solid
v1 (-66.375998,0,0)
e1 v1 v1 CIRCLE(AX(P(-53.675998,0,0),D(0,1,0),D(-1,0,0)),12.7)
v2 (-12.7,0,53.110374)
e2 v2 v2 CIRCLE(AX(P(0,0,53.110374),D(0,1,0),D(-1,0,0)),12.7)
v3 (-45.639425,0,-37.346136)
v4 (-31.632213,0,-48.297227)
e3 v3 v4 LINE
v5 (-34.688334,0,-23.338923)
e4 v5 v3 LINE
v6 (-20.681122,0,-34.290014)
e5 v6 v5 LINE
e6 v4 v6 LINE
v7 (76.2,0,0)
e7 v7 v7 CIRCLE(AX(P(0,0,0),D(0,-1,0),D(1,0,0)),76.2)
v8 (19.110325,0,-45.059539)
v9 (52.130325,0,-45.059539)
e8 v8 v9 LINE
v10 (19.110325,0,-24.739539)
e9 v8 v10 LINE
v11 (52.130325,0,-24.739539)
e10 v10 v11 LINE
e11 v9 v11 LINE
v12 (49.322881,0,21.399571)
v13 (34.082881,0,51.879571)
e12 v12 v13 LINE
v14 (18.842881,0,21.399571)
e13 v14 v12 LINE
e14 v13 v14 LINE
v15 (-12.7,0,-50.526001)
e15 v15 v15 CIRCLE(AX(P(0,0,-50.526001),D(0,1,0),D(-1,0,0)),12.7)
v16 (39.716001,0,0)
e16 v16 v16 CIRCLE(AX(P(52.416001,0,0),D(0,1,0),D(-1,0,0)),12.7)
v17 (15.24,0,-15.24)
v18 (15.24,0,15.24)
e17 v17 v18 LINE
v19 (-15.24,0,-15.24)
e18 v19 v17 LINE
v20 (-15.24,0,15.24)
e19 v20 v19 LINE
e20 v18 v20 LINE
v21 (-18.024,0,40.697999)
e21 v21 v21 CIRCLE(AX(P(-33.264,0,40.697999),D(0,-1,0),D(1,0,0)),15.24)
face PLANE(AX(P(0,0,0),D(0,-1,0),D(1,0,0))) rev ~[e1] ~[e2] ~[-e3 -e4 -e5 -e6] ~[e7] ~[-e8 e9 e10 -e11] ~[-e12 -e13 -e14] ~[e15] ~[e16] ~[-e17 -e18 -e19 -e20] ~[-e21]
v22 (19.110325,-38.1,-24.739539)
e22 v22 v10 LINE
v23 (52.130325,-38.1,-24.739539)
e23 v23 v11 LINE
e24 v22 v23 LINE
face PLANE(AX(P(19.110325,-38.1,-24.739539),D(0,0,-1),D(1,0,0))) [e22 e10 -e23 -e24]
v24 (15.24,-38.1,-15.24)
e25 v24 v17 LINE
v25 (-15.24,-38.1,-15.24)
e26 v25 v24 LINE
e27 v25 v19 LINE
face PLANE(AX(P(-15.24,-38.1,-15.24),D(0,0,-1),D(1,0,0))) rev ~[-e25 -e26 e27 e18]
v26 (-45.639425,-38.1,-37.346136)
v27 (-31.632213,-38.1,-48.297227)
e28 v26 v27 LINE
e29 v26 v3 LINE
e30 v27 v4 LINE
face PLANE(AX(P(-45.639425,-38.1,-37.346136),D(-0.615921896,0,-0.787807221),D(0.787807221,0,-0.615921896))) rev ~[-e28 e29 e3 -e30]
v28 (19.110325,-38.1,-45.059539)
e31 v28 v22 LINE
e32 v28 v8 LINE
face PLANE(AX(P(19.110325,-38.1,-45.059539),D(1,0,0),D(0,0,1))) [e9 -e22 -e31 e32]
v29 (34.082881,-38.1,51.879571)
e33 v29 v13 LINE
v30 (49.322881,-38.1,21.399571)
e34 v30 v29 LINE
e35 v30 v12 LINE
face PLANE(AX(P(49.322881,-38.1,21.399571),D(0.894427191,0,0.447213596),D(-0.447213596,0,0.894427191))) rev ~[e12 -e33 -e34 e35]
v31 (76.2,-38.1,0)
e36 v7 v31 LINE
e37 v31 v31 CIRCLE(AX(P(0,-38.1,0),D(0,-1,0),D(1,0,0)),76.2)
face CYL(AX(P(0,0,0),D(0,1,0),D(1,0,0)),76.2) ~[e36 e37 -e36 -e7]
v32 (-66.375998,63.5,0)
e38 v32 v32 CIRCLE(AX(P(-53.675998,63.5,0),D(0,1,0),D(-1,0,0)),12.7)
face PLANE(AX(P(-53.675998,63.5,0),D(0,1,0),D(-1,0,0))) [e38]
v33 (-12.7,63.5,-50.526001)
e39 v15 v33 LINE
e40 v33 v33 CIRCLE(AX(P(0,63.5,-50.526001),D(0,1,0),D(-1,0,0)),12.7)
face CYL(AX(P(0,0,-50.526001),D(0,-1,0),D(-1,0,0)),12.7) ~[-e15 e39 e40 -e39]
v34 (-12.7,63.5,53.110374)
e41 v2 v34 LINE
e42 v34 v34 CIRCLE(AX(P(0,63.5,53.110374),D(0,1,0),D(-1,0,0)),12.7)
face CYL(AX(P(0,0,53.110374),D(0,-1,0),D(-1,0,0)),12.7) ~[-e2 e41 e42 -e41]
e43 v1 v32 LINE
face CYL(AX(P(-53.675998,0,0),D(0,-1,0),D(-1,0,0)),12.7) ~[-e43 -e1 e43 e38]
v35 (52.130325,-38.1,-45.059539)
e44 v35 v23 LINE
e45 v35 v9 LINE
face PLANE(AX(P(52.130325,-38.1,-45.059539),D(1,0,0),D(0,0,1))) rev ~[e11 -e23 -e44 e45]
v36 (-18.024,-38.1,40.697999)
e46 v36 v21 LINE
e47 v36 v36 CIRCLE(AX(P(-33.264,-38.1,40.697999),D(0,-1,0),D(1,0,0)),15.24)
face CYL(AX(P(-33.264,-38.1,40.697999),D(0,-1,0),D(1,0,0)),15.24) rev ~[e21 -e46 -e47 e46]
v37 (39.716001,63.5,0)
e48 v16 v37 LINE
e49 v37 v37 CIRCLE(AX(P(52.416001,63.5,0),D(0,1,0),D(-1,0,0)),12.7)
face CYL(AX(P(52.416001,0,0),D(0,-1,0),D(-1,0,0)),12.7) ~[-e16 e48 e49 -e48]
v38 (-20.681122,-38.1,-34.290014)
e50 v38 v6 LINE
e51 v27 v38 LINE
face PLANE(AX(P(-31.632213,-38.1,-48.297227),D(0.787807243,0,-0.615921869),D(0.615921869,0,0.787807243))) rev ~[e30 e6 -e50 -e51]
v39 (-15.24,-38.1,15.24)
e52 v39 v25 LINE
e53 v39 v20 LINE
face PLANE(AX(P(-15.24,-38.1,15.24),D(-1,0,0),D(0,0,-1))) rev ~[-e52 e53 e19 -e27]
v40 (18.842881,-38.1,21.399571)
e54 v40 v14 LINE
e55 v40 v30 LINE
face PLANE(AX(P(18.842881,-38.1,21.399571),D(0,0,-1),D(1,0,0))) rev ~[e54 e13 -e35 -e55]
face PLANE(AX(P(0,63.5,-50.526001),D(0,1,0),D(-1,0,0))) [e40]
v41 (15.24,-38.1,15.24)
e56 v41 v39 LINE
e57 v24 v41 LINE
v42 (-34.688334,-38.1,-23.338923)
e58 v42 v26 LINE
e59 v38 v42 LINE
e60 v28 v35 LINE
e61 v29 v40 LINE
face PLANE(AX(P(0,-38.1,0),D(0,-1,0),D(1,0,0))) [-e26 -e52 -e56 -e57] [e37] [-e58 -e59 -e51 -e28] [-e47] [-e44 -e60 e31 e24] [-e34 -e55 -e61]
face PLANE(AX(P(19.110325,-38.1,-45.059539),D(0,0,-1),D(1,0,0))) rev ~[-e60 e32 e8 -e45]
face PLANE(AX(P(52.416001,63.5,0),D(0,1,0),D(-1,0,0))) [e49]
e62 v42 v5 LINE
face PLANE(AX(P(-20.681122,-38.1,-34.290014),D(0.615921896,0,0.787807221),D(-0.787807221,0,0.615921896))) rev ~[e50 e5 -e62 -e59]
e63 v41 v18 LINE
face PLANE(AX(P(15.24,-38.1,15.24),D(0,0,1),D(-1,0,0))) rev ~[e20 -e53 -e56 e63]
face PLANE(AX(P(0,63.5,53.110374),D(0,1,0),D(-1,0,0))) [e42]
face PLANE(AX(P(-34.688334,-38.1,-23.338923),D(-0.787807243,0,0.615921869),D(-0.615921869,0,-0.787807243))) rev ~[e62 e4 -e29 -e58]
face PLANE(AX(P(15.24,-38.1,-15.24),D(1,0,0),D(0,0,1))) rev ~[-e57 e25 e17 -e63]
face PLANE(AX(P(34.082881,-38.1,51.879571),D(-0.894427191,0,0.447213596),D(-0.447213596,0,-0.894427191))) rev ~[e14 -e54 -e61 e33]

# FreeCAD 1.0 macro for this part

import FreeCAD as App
import Part
import Sketcher

V = App.Vector
Q = App.Units.Quantity


def add_polygon(sketch, points):
    """Adds a closed chain of lines whose ends are joined by coincident constraints."""
    first, n = sketch.GeometryCount, len(points)
    for a, b in zip(points, points[1:] + points[:1]):
        sketch.addGeometry(Part.LineSegment(App.Vector(*a, 0), App.Vector(*b, 0)), False)
    for i in range(n):
        sketch.addConstraint(Sketcher.Constraint("Coincident", first + i, 2, first + (i + 1) % n, 1))

doc = App.newDocument("Part")
params = doc.addObject("Spreadsheet::Sheet", "Params")
for row, (alias, value) in enumerate([
    ("sketch1_diameter", "6 in"),
    ("pad1_length", "1.5 in"),
    ("sketch2_diameter", "1.2 in"),
    ("pocket1_length", "1.5 in"),
    ("sketch3_width", "1.2 in"),
    ("pocket2_length", "2 in"),
    ("sketch4_width", "1.2 in"),
    ("pocket3_length", "1.5 in"),
    ("sketch5_diameter", "1 in"),
    ("pad2_length", "2.5 in"),
    ("sketch6_width", "1.3 in"),
    ("sketch6_height", "0.8 in"),
    ("pocket4_length", "2 in"),
    ("sketch7_length", "0.7 in"),
    ("pocket5_length", "1.5 in"),
    ("sketch8_length", "0.7 in"),
    ("pocket6_length", "1.5 in"),
    ("sketch9_length", "0.7 in"),
    ("pocket7_length", "1.5 in"),
], start=1):
    params.set(f"A{row}", alias)
    params.set(f"B{row}", "=" + value)
    params.setAlias(f"B{row}", alias)

body = doc.addObject("PartDesign::Body", "Body")

# Sketch on XZ plane
sketch1 = body.newObject("Sketcher::SketchObject", "Sketch")
sketch1.AttachmentSupport = (doc.getObject("XZ_Plane"), [""])
sketch1.MapMode = "FlatFace"
sketch1.addGeometry(Part.Circle(V(0, 0, 0), V(0, 0, 1), 76), False)
sketch1.addConstraint([
    Sketcher.Constraint("Coincident", 0, 3, -1, 1),
    Sketcher.Constraint("Diameter", 0, Q("6 in")),
])
sketch1.setExpression("Constraints[1]", "Params.sketch1_diameter")
pad1 = body.newObject("PartDesign::Pad", "Pad")
pad1.Profile = sketch1
pad1.setExpression("Length", "Params.pad1_length")

# Sketch on XZ plane
sketch2 = body.newObject("Sketcher::SketchObject", "Sketch001")
sketch2.AttachmentSupport = (doc.getObject("XZ_Plane"), [""])
sketch2.MapMode = "FlatFace"
sketch2.AttachmentOffset = App.Placement(V(0, 0, 1.5 * 25.4), App.Rotation())
sketch2.addGeometry(Part.Circle(V(-33, 41, 0), V(0, 0, 1), 15), False)
sketch2.addConstraint([
    Sketcher.Constraint("Diameter", 0, Q("1.2 in")),
    Sketcher.Constraint("DistanceX", 0, 3, -1, 1, Q("33.264 mm")),
    Sketcher.Constraint("DistanceY", -1, 1, 0, 3, Q("40.697999 mm")),
])
sketch2.setExpression("Constraints[0]", "Params.sketch2_diameter")
pocket1 = body.newObject("PartDesign::Pocket", "Pocket")
pocket1.Profile = sketch2
pocket1.setExpression("Length", "Params.pocket1_length")

# Sketch on XZ plane
sketch3 = body.newObject("Sketcher::SketchObject", "Sketch002")
sketch3.AttachmentSupport = (doc.getObject("XZ_Plane"), [""])
sketch3.MapMode = "FlatFace"
sketch3.AttachmentOffset = App.Placement(V(0, 0, 1.5 * 25.4), App.Rotation())
add_polygon(sketch3, [(34, 52), (19, 21), (49, 21)])  # lines 0-2
sketch3.addConstraint([
    Sketcher.Constraint("Horizontal", 1),
    Sketcher.Constraint("Equal", 0, 2),
    Sketcher.Constraint("DistanceX", 1, 1, 1, 2, Q("1.2 in")),
    Sketcher.Constraint("DistanceY", 0, 2, 2, 2, Q("1.2 in")),
    Sketcher.Constraint("DistanceX", -1, 1, 0, 2, Q("18.842881 mm")),
    Sketcher.Constraint("DistanceY", -1, 1, 0, 2, Q("21.399571 mm")),
])
sketch3.setExpression("Constraints[5]", "Params.sketch3_width")
pocket2 = body.newObject("PartDesign::Pocket", "Pocket001")
pocket2.Profile = sketch3
pocket2.setExpression("Length", "Params.pocket2_length")

# Sketch on XZ plane
sketch4 = body.newObject("Sketcher::SketchObject", "Sketch003")
sketch4.AttachmentSupport = (doc.getObject("XZ_Plane"), [""])
sketch4.MapMode = "FlatFace"
sketch4.AttachmentOffset = App.Placement(V(0, 0, 1.5 * 25.4), App.Rotation())
add_polygon(sketch4, [(15, 15), (-15, 15), (-15, -15), (15, -15)])  # lines 0-3
sketch4.addConstraint([
    Sketcher.Constraint("Horizontal", 0),
    Sketcher.Constraint("Vertical", 1),
    Sketcher.Constraint("Horizontal", 2),
    Sketcher.Constraint("Vertical", 3),
    Sketcher.Constraint("Symmetric", 0, 2, 2, 2, -1, 1),
    Sketcher.Constraint("Equal", 2, 1),
    Sketcher.Constraint("DistanceX", 0, 2, 0, 1, Q("1.2 in")),
])
sketch4.setExpression("Constraints[10]", "Params.sketch4_width")
pocket3 = body.newObject("PartDesign::Pocket", "Pocket002")
pocket3.Profile = sketch4
pocket3.setExpression("Length", "Params.pocket3_length")

# Sketch on XZ plane
sketch5 = body.newObject("Sketcher::SketchObject", "Sketch004")
sketch5.AttachmentSupport = (doc.getObject("XZ_Plane"), [""])
sketch5.MapMode = "FlatFace"
sketch5.addGeometry([
    Part.Circle(V(0, 53, 0), V(0, 0, 1), 13),
    Part.Circle(V(0, -51, 0), V(0, 0, 1), 13),
    Part.Circle(V(-54, 0, 0), V(0, 0, 1), 13),
    Part.Circle(V(52, 0, 0), V(0, 0, 1), 13),
], False)
sketch5.addConstraint([
    Sketcher.Constraint("Equal", 0, 1),
    Sketcher.Constraint("Equal", 1, 2),
    Sketcher.Constraint("Equal", 2, 3),
    Sketcher.Constraint("PointOnObject", 0, 3, -2),
    Sketcher.Constraint("PointOnObject", 1, 3, -2),
    Sketcher.Constraint("PointOnObject", 2, 3, -1),
    Sketcher.Constraint("PointOnObject", 3, 3, -1),
    Sketcher.Constraint("Diameter", 0, Q("1 in")),
    Sketcher.Constraint("DistanceY", 1, 3, -1, 1, Q("50.526001 mm")),
    Sketcher.Constraint("DistanceX", -1, 1, 3, 3, Q("52.416001 mm")),
    Sketcher.Constraint("DistanceX", 2, 3, 3, 3, Q("106.091999 mm")),
    Sketcher.Constraint("DistanceY", -1, 1, 0, 3, Q("53.110374 mm")),
])
sketch5.setExpression("Constraints[7]", "Params.sketch5_diameter")
pad2 = body.newObject("PartDesign::Pad", "Pad001")
pad2.Profile = sketch5
pad2.setExpression("Length", "Params.pad2_length")
pad2.Reversed = True

# Sketch on XZ plane
sketch6 = body.newObject("Sketcher::SketchObject", "Sketch005")
sketch6.AttachmentSupport = (doc.getObject("XZ_Plane"), [""])
sketch6.MapMode = "FlatFace"
sketch6.AttachmentOffset = App.Placement(V(0, 0, 1.5 * 25.4), App.Rotation())
add_polygon(sketch6, [(19, -25), (19, -45), (52, -45), (52, -25)])  # lines 0-3
sketch6.addConstraint([
    Sketcher.Constraint("Vertical", 0),
    Sketcher.Constraint("Horizontal", 1),
    Sketcher.Constraint("Vertical", 2),
    Sketcher.Constraint("Horizontal", 3),
    Sketcher.Constraint("DistanceX", 1, 1, 1, 2, Q("1.3 in")),
    Sketcher.Constraint("DistanceY", 0, 2, 0, 1, Q("0.8 in")),
    Sketcher.Constraint("DistanceY", 0, 2, -1, 1, Q("45.059539 mm")),
    Sketcher.Constraint("DistanceX", -1, 1, 0, 2, Q("19.110325 mm")),
])
sketch6.setExpression("Constraints[8]", "Params.sketch6_width")
sketch6.setExpression("Constraints[9]", "Params.sketch6_height")
pocket4 = body.newObject("PartDesign::Pocket", "Pocket003")
pocket4.Profile = sketch6
pocket4.setExpression("Length", "Params.pocket4_length")

# Sketch on XZ plane
sketch7 = body.newObject("Sketcher::SketchObject", "Sketch006")
sketch7.AttachmentSupport = (doc.getObject("XZ_Plane"), [""])
sketch7.MapMode = "FlatFace"
sketch7.AttachmentOffset = App.Placement(V(0, 0, 1.5 * 25.4), App.Rotation())
add_polygon(sketch7, [(-21, -34), (-35, -23), (-46, -37), (-32, -48)])  # lines 0-3
sketch7.addConstraint([
    Sketcher.Constraint("Perpendicular", 0, 1),
    Sketcher.Constraint("Perpendicular", 1, 2),
    Sketcher.Constraint("Perpendicular", 2, 3),
    Sketcher.Constraint("Equal", 0, 1),
    Sketcher.Constraint("Distance", 0, Q("0.7 in")),
    Sketcher.Constraint("DistanceX", 3, 2, -1, 1, Q("20.681122 mm")),
    Sketcher.Constraint("DistanceX", 1, 2, 0, 2, Q("10.951091 mm")),
    Sketcher.Constraint("DistanceY", 0, 2, -1, 1, Q("23.338923 mm")),
])
sketch7.setExpression("Constraints[8]", "Params.sketch7_length")
pocket5 = body.newObject("PartDesign::Pocket", "Pocket004")
pocket5.Profile = sketch7
pocket5.setExpression("Length", "Params.pocket5_length")
pocket5.Reversed = True

# Sketch on XZ plane
sketch8 = body.newObject("Sketcher::SketchObject", "Sketch007")
sketch8.AttachmentSupport = (doc.getObject("XZ_Plane"), [""])
sketch8.MapMode = "FlatFace"
sketch8.AttachmentOffset = App.Placement(V(0, 0, 1.5 * 25.4), App.Rotation())
add_polygon(sketch8, [(-21, -34), (-35, -23), (-46, -37), (-32, -48)])  # lines 0-3
sketch8.addConstraint([
    Sketcher.Constraint("Perpendicular", 0, 1),
    Sketcher.Constraint("Perpendicular", 1, 2),
    Sketcher.Constraint("Perpendicular", 2, 3),
    Sketcher.Constraint("Equal", 0, 1),
    Sketcher.Constraint("Distance", 0, Q("0.7 in")),
    Sketcher.Constraint("DistanceX", 3, 2, -1, 1, Q("20.681122 mm")),
    Sketcher.Constraint("DistanceX", 1, 2, 0, 2, Q("10.951091 mm")),
    Sketcher.Constraint("DistanceY", 0, 2, -1, 1, Q("23.338923 mm")),
])
sketch8.setExpression("Constraints[8]", "Params.sketch8_length")
pocket6 = body.newObject("PartDesign::Pocket", "Pocket005")
pocket6.Profile = sketch8
pocket6.setExpression("Length", "Params.pocket6_length")

# Sketch on XZ plane
sketch9 = body.newObject("Sketcher::SketchObject", "Sketch008")
sketch9.AttachmentSupport = (doc.getObject("XZ_Plane"), [""])
sketch9.MapMode = "FlatFace"
sketch9.AttachmentOffset = App.Placement(V(0, 0, 1.5 * 25.4), App.Rotation())
add_polygon(sketch9, [(-21, -34), (-35, -23), (-46, -37), (-32, -48)])  # lines 0-3
sketch9.addConstraint([
    Sketcher.Constraint("Perpendicular", 0, 1),
    Sketcher.Constraint("Perpendicular", 1, 2),
    Sketcher.Constraint("Perpendicular", 2, 3),
    Sketcher.Constraint("Equal", 0, 1),
    Sketcher.Constraint("Distance", 0, Q("0.7 in")),
    Sketcher.Constraint("DistanceX", 3, 2, -1, 1, Q("20.681122 mm")),
    Sketcher.Constraint("DistanceX", 1, 2, 0, 2, Q("10.951091 mm")),
    Sketcher.Constraint("DistanceY", 0, 2, -1, 1, Q("23.338923 mm")),
])
sketch9.setExpression("Constraints[8]", "Params.sketch9_length")
pocket7 = body.newObject("PartDesign::Pocket", "Pocket006")
pocket7.Profile = sketch9
pocket7.setExpression("Length", "Params.pocket7_length")

doc.recompute()
